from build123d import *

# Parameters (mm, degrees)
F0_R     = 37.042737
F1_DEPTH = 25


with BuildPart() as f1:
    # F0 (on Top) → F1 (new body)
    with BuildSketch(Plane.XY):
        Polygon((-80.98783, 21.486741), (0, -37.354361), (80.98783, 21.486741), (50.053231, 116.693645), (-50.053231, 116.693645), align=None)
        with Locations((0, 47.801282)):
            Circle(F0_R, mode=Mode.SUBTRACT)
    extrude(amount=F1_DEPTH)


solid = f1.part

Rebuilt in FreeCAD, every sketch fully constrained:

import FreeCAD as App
import Part
import Sketcher

V = App.Vector
Q = App.Units.Quantity


def add_polygon(sketch, points):
    """Adds a closed chain of lines whose ends are joined by coincident constraints."""
    first, n = sketch.GeometryCount, len(points)
    for a, b in zip(points, points[1:] + points[:1]):
        sketch.addGeometry(Part.LineSegment(App.Vector(*a, 0), App.Vector(*b, 0)), False)
    for i in range(n):
        sketch.addConstraint(Sketcher.Constraint("Coincident", first + i, 2, first + (i + 1) % n, 1))

doc = App.newDocument("Part")
body = doc.addObject("PartDesign::Body", "Body")

# Sketch on XY plane
sketch1 = body.newObject("Sketcher::SketchObject", "Sketch")
sketch1.AttachmentSupport = (doc.getObject("XY_Plane"), [""])
sketch1.MapMode = "FlatFace"
add_polygon(sketch1, [(-80.98783, 21.486741), (0, -37.354361), (80.98783, 21.486741), (50.053231, 116.693645), (-50.053231, 116.693645)])  # lines 0-4
sketch1.addGeometry(Part.Circle(V(0, 47.801282, 0), V(0, 0, 1), 37.042737), False)  # 5
sketch1.addConstraint([
    Sketcher.Constraint("Horizontal", 3),
    Sketcher.Constraint("Symmetric", 1, 2, 4, 2, -2),
    Sketcher.Constraint("PointOnObject", 5, 3, -2),
    Sketcher.Constraint("PointOnObject", 0, 2, -2),
    Sketcher.Constraint("Equal", 1, 2),
    Sketcher.Constraint("Equal", 2, 4),
    Sketcher.Constraint("Angle", 0, Q("-36 deg")),
    Sketcher.Constraint("Angle", 2, Q("108 deg")),
    Sketcher.Constraint("Diameter", 5, 74.085474),
    Sketcher.Constraint("DistanceX", 3, 2, 3, 1, 100.106462),
    Sketcher.Constraint("DistanceY", 0, 2, -1, 1, 37.354361),
    Sketcher.Constraint("DistanceY", 1, 2, 5, 3, 26.314541),
])
pad1 = body.newObject("PartDesign::Pad", "Pad")
pad1.Profile = sketch1
pad1.Length = 25

doc.recompute()
